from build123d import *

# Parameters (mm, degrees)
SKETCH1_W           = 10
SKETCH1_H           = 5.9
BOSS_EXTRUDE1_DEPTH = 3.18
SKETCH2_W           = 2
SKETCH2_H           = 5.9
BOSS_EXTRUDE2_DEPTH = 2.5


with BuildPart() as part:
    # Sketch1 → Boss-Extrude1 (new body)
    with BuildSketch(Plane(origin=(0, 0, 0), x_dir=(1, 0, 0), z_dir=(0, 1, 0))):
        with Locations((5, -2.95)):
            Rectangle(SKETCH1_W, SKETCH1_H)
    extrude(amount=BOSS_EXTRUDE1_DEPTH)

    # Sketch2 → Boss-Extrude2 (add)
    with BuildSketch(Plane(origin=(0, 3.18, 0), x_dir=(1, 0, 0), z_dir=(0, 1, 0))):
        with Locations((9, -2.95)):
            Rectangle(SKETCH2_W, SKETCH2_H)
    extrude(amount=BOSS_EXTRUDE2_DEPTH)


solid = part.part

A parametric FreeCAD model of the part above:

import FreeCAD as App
import Part
import Sketcher

V = App.Vector
Q = App.Units.Quantity


def add_polygon(sketch, points):
    """Adds a closed chain of lines whose ends are joined by coincident constraints."""
    first, n = sketch.GeometryCount, len(points)
    for a, b in zip(points, points[1:] + points[:1]):
        sketch.addGeometry(Part.LineSegment(App.Vector(*a, 0), App.Vector(*b, 0)), False)
    for i in range(n):
        sketch.addConstraint(Sketcher.Constraint("Coincident", first + i, 2, first + (i + 1) % n, 1))

doc = App.newDocument("Part")
body = doc.addObject("PartDesign::Body", "Body")

sketch1 = body.newObject("Sketcher::SketchObject", "Sketch")
sketch1.AttachmentSupport = (doc.getObject("XZ_Plane"), [""])
sketch1.MapMode = "FlatFace"
add_polygon(sketch1, [(0, 0), (0, 6), (10, 6), (10, 0)])
sketch1.addConstraint([
    Sketcher.Constraint("Vertical", 0),
    Sketcher.Constraint("Horizontal", 1),
    Sketcher.Constraint("Vertical", 2),
    Sketcher.Constraint("Horizontal", 3),
    Sketcher.Constraint("Coincident", 3, 2, -1, 1),
    Sketcher.Constraint("DistanceX", 1, 1, 1, 2, Q("10 mm")),
    Sketcher.Constraint("DistanceY", 0, 1, 0, 2, Q("5.9 mm")),
])
pad1 = body.newObject("PartDesign::Pad", "Pad")
pad1.Profile = sketch1
pad1.Length = 3.18
pad1.Reversed = True

sketch2 = body.newObject("Sketcher::SketchObject", "Sketch001")
sketch2.AttachmentSupport = (doc.getObject("XZ_Plane"), [""])
sketch2.MapMode = "FlatFace"
sketch2.AttachmentOffset = App.Placement(V(0, 0, -3.18), App.Rotation())
add_polygon(sketch2, [(8, 0), (8, 5.9), (10, 5.9), (10, 0)])
sketch2.addConstraint([
    Sketcher.Constraint("Vertical", 0),
    Sketcher.Constraint("Horizontal", 1),
    Sketcher.Constraint("Vertical", 2),
    Sketcher.Constraint("Horizontal", 3),
    Sketcher.Constraint("PointOnObject", 2, 2, -1),
    Sketcher.Constraint("DistanceX", 1, 1, 1, 2, Q("2 mm")),
    Sketcher.Constraint("DistanceY", 0, 1, 0, 2, Q("5.9 mm")),
    Sketcher.Constraint("DistanceX", -1, 1, 0, 2, Q("8 mm")),
])
pad2 = body.newObject("PartDesign::Pad", "Pad001")
pad2.Profile = sketch2
pad2.Length = 2.5
pad2.Reversed = True

doc.recompute()
